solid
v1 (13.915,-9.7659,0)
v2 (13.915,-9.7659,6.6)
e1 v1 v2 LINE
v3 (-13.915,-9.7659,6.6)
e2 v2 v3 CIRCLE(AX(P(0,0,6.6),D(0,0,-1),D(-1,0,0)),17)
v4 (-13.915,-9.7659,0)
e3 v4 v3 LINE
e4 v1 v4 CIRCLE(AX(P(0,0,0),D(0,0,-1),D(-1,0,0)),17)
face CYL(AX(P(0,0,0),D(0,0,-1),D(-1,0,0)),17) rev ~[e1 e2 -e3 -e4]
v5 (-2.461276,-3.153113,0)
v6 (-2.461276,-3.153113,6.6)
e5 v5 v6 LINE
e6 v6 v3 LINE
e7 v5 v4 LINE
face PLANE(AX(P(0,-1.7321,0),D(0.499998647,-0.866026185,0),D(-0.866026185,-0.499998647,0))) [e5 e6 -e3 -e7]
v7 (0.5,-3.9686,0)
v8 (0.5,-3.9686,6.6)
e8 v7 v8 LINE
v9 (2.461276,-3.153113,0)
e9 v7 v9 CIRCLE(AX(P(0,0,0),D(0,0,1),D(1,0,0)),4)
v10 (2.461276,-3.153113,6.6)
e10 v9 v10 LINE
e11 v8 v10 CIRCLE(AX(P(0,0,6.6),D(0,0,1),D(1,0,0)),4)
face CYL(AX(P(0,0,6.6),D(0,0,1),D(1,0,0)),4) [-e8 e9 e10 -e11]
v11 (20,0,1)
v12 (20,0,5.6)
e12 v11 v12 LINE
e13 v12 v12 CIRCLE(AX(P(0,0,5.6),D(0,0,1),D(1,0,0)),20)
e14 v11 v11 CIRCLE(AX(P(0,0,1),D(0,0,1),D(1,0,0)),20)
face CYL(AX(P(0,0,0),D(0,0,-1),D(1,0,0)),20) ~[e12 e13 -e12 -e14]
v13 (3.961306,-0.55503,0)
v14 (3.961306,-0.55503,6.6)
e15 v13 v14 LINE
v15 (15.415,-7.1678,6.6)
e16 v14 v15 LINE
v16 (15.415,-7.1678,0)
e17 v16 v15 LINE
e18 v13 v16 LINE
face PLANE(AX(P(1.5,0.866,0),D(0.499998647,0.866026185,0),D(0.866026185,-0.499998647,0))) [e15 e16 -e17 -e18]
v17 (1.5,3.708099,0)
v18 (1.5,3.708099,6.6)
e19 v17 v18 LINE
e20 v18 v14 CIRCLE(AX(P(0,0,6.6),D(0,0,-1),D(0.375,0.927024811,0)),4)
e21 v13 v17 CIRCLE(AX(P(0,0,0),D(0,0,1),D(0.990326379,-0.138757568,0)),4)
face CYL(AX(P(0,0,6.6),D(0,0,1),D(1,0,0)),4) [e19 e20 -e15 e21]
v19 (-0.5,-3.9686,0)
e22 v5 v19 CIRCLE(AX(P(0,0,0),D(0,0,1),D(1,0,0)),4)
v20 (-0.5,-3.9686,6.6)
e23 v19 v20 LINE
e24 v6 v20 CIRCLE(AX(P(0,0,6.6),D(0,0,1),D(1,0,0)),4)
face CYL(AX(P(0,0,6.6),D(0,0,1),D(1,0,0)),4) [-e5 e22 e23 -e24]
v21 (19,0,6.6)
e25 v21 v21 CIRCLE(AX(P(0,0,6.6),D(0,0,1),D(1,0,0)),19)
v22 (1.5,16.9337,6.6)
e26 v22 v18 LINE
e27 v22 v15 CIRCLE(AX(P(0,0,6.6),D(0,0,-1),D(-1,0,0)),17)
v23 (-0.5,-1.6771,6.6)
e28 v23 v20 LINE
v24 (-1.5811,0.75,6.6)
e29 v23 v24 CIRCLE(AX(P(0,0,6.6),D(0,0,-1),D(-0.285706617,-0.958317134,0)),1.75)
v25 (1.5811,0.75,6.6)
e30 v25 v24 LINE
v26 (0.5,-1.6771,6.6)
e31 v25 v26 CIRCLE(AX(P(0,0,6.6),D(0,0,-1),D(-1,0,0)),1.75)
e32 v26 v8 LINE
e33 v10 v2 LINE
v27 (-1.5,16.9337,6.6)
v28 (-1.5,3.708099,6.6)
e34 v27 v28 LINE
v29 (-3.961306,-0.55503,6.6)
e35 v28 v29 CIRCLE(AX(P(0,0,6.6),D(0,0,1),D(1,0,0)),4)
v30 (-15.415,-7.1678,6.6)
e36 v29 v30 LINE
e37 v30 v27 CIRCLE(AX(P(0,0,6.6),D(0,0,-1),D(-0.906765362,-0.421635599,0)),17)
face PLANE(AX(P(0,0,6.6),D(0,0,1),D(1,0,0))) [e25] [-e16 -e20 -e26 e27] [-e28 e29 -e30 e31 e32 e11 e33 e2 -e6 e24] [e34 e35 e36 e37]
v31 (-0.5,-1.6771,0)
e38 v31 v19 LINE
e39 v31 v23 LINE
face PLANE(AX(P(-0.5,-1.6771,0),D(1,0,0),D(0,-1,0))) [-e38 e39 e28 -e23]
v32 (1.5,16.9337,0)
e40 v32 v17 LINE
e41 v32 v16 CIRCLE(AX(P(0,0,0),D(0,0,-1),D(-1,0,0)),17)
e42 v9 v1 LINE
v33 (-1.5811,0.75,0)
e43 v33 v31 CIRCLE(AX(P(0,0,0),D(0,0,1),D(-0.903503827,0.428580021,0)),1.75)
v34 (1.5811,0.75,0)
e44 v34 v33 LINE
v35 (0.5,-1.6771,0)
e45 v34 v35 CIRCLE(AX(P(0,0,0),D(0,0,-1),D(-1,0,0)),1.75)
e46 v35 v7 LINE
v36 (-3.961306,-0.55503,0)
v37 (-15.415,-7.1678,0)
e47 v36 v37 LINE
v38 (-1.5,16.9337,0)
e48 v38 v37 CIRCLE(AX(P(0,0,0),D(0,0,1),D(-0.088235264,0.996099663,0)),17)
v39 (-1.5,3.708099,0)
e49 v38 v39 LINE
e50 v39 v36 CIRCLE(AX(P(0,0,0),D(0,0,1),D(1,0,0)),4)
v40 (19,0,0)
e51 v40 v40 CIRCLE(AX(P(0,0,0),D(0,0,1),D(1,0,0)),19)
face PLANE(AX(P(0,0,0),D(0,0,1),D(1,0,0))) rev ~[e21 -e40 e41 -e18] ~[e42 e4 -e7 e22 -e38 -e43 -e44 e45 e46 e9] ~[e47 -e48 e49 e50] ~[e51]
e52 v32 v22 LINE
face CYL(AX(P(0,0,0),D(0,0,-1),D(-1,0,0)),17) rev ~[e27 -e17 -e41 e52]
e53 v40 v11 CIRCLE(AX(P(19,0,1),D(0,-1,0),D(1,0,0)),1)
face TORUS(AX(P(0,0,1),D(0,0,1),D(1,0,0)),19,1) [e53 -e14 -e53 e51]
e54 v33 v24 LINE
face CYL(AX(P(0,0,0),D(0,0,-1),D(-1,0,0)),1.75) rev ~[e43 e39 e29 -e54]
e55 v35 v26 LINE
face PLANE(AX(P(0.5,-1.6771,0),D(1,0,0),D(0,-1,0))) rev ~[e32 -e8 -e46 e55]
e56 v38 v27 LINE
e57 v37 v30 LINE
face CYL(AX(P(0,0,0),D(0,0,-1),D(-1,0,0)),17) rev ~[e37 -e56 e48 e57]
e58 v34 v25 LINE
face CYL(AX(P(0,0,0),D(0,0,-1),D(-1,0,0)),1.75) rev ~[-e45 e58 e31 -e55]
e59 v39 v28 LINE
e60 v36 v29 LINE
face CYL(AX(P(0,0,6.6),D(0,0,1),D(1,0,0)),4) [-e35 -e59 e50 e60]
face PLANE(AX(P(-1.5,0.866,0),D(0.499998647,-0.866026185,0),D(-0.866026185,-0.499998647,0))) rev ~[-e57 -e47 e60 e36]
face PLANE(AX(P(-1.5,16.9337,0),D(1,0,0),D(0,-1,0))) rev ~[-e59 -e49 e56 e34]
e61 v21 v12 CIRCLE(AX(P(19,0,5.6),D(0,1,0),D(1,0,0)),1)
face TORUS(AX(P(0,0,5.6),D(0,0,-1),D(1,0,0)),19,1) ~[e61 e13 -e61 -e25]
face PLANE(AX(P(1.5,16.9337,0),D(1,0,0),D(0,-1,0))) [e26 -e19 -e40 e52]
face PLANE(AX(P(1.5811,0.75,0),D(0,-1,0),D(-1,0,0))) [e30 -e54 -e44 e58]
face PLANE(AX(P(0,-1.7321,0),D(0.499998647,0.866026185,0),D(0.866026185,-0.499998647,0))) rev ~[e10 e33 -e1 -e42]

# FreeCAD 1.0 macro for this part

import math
import FreeCAD as App
import Part
import Sketcher
from FreeCAD import Vector
Q = App.Units.Quantity


def edges_at(feature, points):
    """Names of the edges that pass closest to the given points."""
    edges = feature.Shape.Edges
    near = lambda p: min(range(len(edges)), key=lambda i: edges[i].distToShape(Part.Vertex(*p))[0])
    return sorted({f"Edge{near(p) + 1}" for p in points})

doc = App.newDocument("Part")
params = doc.addObject("Spreadsheet::Sheet", "Params")
for row, (alias, value) in enumerate([
    ("sketch1_diameter", "40 mm"),
    ("pad1_length", "6.6 mm"),
    ("sketch2_radius", "17 mm"),
    ("pocket1_length", "6.6 mm"),
    ("sketch3_diameter", "8 mm"),
    ("pad2_length", "6.6 mm"),
    ("sketch4_radius", "1.75 mm"),
    ("sketch4_radius2", "4 mm"),
    ("pocket2_length", "6.6 mm"),
    ("fillet_radius", "1 mm"),
], start=1):
    params.set(f"A{row}", alias)
    params.set(f"B{row}", "=" + value)
    params.setAlias(f"B{row}", alias)

body = doc.addObject("PartDesign::Body", "Body")

# Sketch on XY plane
sketch1 = body.newObject("Sketcher::SketchObject", "Sketch")
sketch1.AttachmentSupport = (doc.getObject("XY_Plane"), [""])
sketch1.MapMode = "FlatFace"
sketch1.addGeometry(Part.Circle(Vector(0, 0, 0), Vector(0, 0, 1), 20), False)
sketch1.addConstraint(Sketcher.Constraint("Coincident", 0, 3, -1, 1))
sketch1.addConstraint(Sketcher.Constraint("Diameter", 0, 40.0))
sketch1.setExpression("Constraints[1]", "Params.sketch1_diameter")
pad1 = body.newObject("PartDesign::Pad", "Pad")
pad1.Profile = sketch1
pad1.setExpression("Length", "Params.pad1_length")

# Sketch on XY plane
sketch2 = body.newObject("Sketcher::SketchObject", "Sketch001")
sketch2.AttachmentSupport = (doc.getObject("XY_Plane"), [""])
sketch2.MapMode = "FlatFace"
sketch2.addGeometry(Part.ArcOfCircle(Part.Circle(Vector(0, 0, 0), Vector(0, 0, 1), 17), math.radians(95), math.radians(205)), False)
sketch2.addGeometry(Part.LineSegment(Vector(-2, 17, 0), Vector(-2, 1, 0)), False)
sketch2.addGeometry(Part.LineSegment(Vector(-2, 1, 0), Vector(-15, -7, 0)), False)
sketch2.addGeometry(Part.LineSegment(Vector(2, 1, 0), Vector(2, 17, 0)), False)
sketch2.addGeometry(Part.ArcOfCircle(Part.Circle(Vector(0, 0, 0), Vector(0, 0, 1), 17), math.radians(-25), math.radians(85)), False)
sketch2.addGeometry(Part.LineSegment(Vector(15, -7, 0), Vector(2, 1, 0)), False)
sketch2.addGeometry(Part.ArcOfCircle(Part.Circle(Vector(0, 0, 0), Vector(0, 0, 1), 17), math.radians(-145), math.radians(-35)), False)
sketch2.addGeometry(Part.LineSegment(Vector(-14, -10, 0), Vector(0, -2, 0)), False)
sketch2.addGeometry(Part.LineSegment(Vector(0, -2, 0), Vector(14, -10, 0)), False)
sketch2.addConstraint(Sketcher.Constraint("Coincident", 0, 1, 1, 1))
sketch2.addConstraint(Sketcher.Constraint("Coincident", 1, 2, 2, 1))
sketch2.addConstraint(Sketcher.Constraint("Coincident", 2, 2, 0, 2))
sketch2.addConstraint(Sketcher.Constraint("Coincident", 3, 2, 4, 2))
sketch2.addConstraint(Sketcher.Constraint("Coincident", 4, 1, 5, 1))
sketch2.addConstraint(Sketcher.Constraint("Coincident", 5, 2, 3, 1))
sketch2.addConstraint(Sketcher.Constraint("Coincident", 6, 1, 7, 1))
sketch2.addConstraint(Sketcher.Constraint("Coincident", 7, 2, 8, 1))
sketch2.addConstraint(Sketcher.Constraint("Coincident", 8, 2, 6, 2))
sketch2.addConstraint(Sketcher.Constraint("Vertical", 1))
sketch2.addConstraint(Sketcher.Constraint("Vertical", 3))
sketch2.addConstraint(Sketcher.Constraint("Coincident", 0, 3, -1, 1))
sketch2.addConstraint(Sketcher.Constraint("Coincident", 4, 3, -1, 1))
sketch2.addConstraint(Sketcher.Constraint("Coincident", 6, 3, -1, 1))
sketch2.addConstraint(Sketcher.Constraint("Equal", 0, 4))
sketch2.addConstraint(Sketcher.Constraint("Equal", 4, 6))
sketch2.addConstraint(Sketcher.Constraint("Symmetric", 1, 2, 5, 2, -2))
sketch2.addConstraint(Sketcher.Constraint("PointOnObject", 7, 2, -2))
sketch2.addConstraint(Sketcher.Constraint("Parallel", 2, 7))
sketch2.addConstraint(Sketcher.Constraint("Parallel", 5, 8))
sketch2.addConstraint(Sketcher.Constraint("Horizontal", 2, 2, 4, 1))
sketch2.addConstraint(Sketcher.Constraint("Equal", 5, 7))
sketch2.addConstraint(Sketcher.Constraint("Radius", 0, 17.0))
sketch2.addConstraint(Sketcher.Constraint("Angle", 2, Q("-150 deg")))
sketch2.addConstraint(Sketcher.Constraint("DistanceX", 0, 1, -1, 1, 1.5))
sketch2.addConstraint(Sketcher.Constraint("DistanceY", 1, 2, 1, 1, 16.0677))
sketch2.setExpression("Constraints[22]", "Params.sketch2_radius")
pocket1 = body.newObject("PartDesign::Pocket", "Pocket")
pocket1.Profile = sketch2
pocket1.setExpression("Length", "Params.pocket1_length")
pocket1.Reversed = True

# Sketch on XY plane
sketch3 = body.newObject("Sketcher::SketchObject", "Sketch002")
sketch3.AttachmentSupport = (doc.getObject("XY_Plane"), [""])
sketch3.MapMode = "FlatFace"
sketch3.AttachmentOffset = App.Placement(Vector(0, 0, 6.6), App.Rotation())
sketch3.addGeometry(Part.Circle(Vector(0, 0, 0), Vector(0, 0, 1), 4), False)
sketch3.addConstraint(Sketcher.Constraint("Coincident", 0, 3, -1, 1))
sketch3.addConstraint(Sketcher.Constraint("Diameter", 0, 8.0))
sketch3.setExpression("Constraints[1]", "Params.sketch3_diameter")
pad2 = body.newObject("PartDesign::Pad", "Pad001")
pad2.Profile = sketch3
pad2.setExpression("Length", "Params.pad2_length")
pad2.Reversed = True

# Sketch on XY plane
sketch4 = body.newObject("Sketcher::SketchObject", "Sketch003")
sketch4.AttachmentSupport = (doc.getObject("XY_Plane"), [""])
sketch4.MapMode = "FlatFace"
sketch4.addGeometry(Part.ArcOfCircle(Part.Circle(Vector(0, 0, 0), Vector(0, 0, 1), 1.8), math.radians(155), math.radians(253)), False)
sketch4.addGeometry(Part.LineSegment(Vector(-1.6, 0.8, 0), Vector(1.6, 0.8, 0)), False)
sketch4.addGeometry(Part.ArcOfCircle(Part.Circle(Vector(0, 0, 0), Vector(0, 0, 1), 1.8), math.radians(-73), math.radians(25)), False)
sketch4.addGeometry(Part.LineSegment(Vector(0.5, -1.7, 0), Vector(0.5, -4, 0)), False)
sketch4.addGeometry(Part.ArcOfCircle(Part.Circle(Vector(0, 0, 0), Vector(0, 0, 1), 4), math.radians(-97.18), math.radians(-82.82)), False)
sketch4.addGeometry(Part.LineSegment(Vector(-0.5, -4, 0), Vector(-0.5, -1.7, 0)), False)
sketch4.addConstraint(Sketcher.Constraint("Coincident", 0, 1, 1, 1))
sketch4.addConstraint(Sketcher.Constraint("Coincident", 1, 2, 2, 2))
sketch4.addConstraint(Sketcher.Constraint("Coincident", 2, 1, 3, 1))
sketch4.addConstraint(Sketcher.Constraint("Coincident", 3, 2, 4, 2))
sketch4.addConstraint(Sketcher.Constraint("Coincident", 4, 1, 5, 1))
sketch4.addConstraint(Sketcher.Constraint("Coincident", 5, 2, 0, 2))
sketch4.addConstraint(Sketcher.Constraint("Horizontal", 1))
sketch4.addConstraint(Sketcher.Constraint("Vertical", 3))
sketch4.addConstraint(Sketcher.Constraint("Vertical", 5))
sketch4.addConstraint(Sketcher.Constraint("Coincident", 0, 3, -1, 1))
sketch4.addConstraint(Sketcher.Constraint("Coincident", 2, 3, -1, 1))
sketch4.addConstraint(Sketcher.Constraint("Coincident", 4, 3, -1, 1))
sketch4.addConstraint(Sketcher.Constraint("Equal", 0, 2))
sketch4.addConstraint(Sketcher.Constraint("Horizontal", 3, 2, 4, 1))
sketch4.addConstraint(Sketcher.Constraint("Radius", 0, 1.75))
sketch4.addConstraint(Sketcher.Constraint("Radius", 4, 4.0))
sketch4.addConstraint(Sketcher.Constraint("DistanceX", -1, 1, 2, 1, 0.5))
sketch4.addConstraint(Sketcher.Constraint("DistanceY", -1, 1, 0, 1, 0.75))
sketch4.setExpression("Constraints[14]", "Params.sketch4_radius")
sketch4.setExpression("Constraints[15]", "Params.sketch4_radius2")
pocket2 = body.newObject("PartDesign::Pocket", "Pocket001")
pocket2.Profile = sketch4
pocket2.setExpression("Length", "Params.pocket2_length")
pocket2.Reversed = True
doc.recompute()

fillet = body.newObject("PartDesign::Fillet", "Fillet")
fillet.Base = (pocket2, edges_at(pocket2, [(-20, 0, 6.6), (-20, 0, 0)]))
fillet.setExpression("Radius", "Params.fillet_radius")

doc.recompute()
